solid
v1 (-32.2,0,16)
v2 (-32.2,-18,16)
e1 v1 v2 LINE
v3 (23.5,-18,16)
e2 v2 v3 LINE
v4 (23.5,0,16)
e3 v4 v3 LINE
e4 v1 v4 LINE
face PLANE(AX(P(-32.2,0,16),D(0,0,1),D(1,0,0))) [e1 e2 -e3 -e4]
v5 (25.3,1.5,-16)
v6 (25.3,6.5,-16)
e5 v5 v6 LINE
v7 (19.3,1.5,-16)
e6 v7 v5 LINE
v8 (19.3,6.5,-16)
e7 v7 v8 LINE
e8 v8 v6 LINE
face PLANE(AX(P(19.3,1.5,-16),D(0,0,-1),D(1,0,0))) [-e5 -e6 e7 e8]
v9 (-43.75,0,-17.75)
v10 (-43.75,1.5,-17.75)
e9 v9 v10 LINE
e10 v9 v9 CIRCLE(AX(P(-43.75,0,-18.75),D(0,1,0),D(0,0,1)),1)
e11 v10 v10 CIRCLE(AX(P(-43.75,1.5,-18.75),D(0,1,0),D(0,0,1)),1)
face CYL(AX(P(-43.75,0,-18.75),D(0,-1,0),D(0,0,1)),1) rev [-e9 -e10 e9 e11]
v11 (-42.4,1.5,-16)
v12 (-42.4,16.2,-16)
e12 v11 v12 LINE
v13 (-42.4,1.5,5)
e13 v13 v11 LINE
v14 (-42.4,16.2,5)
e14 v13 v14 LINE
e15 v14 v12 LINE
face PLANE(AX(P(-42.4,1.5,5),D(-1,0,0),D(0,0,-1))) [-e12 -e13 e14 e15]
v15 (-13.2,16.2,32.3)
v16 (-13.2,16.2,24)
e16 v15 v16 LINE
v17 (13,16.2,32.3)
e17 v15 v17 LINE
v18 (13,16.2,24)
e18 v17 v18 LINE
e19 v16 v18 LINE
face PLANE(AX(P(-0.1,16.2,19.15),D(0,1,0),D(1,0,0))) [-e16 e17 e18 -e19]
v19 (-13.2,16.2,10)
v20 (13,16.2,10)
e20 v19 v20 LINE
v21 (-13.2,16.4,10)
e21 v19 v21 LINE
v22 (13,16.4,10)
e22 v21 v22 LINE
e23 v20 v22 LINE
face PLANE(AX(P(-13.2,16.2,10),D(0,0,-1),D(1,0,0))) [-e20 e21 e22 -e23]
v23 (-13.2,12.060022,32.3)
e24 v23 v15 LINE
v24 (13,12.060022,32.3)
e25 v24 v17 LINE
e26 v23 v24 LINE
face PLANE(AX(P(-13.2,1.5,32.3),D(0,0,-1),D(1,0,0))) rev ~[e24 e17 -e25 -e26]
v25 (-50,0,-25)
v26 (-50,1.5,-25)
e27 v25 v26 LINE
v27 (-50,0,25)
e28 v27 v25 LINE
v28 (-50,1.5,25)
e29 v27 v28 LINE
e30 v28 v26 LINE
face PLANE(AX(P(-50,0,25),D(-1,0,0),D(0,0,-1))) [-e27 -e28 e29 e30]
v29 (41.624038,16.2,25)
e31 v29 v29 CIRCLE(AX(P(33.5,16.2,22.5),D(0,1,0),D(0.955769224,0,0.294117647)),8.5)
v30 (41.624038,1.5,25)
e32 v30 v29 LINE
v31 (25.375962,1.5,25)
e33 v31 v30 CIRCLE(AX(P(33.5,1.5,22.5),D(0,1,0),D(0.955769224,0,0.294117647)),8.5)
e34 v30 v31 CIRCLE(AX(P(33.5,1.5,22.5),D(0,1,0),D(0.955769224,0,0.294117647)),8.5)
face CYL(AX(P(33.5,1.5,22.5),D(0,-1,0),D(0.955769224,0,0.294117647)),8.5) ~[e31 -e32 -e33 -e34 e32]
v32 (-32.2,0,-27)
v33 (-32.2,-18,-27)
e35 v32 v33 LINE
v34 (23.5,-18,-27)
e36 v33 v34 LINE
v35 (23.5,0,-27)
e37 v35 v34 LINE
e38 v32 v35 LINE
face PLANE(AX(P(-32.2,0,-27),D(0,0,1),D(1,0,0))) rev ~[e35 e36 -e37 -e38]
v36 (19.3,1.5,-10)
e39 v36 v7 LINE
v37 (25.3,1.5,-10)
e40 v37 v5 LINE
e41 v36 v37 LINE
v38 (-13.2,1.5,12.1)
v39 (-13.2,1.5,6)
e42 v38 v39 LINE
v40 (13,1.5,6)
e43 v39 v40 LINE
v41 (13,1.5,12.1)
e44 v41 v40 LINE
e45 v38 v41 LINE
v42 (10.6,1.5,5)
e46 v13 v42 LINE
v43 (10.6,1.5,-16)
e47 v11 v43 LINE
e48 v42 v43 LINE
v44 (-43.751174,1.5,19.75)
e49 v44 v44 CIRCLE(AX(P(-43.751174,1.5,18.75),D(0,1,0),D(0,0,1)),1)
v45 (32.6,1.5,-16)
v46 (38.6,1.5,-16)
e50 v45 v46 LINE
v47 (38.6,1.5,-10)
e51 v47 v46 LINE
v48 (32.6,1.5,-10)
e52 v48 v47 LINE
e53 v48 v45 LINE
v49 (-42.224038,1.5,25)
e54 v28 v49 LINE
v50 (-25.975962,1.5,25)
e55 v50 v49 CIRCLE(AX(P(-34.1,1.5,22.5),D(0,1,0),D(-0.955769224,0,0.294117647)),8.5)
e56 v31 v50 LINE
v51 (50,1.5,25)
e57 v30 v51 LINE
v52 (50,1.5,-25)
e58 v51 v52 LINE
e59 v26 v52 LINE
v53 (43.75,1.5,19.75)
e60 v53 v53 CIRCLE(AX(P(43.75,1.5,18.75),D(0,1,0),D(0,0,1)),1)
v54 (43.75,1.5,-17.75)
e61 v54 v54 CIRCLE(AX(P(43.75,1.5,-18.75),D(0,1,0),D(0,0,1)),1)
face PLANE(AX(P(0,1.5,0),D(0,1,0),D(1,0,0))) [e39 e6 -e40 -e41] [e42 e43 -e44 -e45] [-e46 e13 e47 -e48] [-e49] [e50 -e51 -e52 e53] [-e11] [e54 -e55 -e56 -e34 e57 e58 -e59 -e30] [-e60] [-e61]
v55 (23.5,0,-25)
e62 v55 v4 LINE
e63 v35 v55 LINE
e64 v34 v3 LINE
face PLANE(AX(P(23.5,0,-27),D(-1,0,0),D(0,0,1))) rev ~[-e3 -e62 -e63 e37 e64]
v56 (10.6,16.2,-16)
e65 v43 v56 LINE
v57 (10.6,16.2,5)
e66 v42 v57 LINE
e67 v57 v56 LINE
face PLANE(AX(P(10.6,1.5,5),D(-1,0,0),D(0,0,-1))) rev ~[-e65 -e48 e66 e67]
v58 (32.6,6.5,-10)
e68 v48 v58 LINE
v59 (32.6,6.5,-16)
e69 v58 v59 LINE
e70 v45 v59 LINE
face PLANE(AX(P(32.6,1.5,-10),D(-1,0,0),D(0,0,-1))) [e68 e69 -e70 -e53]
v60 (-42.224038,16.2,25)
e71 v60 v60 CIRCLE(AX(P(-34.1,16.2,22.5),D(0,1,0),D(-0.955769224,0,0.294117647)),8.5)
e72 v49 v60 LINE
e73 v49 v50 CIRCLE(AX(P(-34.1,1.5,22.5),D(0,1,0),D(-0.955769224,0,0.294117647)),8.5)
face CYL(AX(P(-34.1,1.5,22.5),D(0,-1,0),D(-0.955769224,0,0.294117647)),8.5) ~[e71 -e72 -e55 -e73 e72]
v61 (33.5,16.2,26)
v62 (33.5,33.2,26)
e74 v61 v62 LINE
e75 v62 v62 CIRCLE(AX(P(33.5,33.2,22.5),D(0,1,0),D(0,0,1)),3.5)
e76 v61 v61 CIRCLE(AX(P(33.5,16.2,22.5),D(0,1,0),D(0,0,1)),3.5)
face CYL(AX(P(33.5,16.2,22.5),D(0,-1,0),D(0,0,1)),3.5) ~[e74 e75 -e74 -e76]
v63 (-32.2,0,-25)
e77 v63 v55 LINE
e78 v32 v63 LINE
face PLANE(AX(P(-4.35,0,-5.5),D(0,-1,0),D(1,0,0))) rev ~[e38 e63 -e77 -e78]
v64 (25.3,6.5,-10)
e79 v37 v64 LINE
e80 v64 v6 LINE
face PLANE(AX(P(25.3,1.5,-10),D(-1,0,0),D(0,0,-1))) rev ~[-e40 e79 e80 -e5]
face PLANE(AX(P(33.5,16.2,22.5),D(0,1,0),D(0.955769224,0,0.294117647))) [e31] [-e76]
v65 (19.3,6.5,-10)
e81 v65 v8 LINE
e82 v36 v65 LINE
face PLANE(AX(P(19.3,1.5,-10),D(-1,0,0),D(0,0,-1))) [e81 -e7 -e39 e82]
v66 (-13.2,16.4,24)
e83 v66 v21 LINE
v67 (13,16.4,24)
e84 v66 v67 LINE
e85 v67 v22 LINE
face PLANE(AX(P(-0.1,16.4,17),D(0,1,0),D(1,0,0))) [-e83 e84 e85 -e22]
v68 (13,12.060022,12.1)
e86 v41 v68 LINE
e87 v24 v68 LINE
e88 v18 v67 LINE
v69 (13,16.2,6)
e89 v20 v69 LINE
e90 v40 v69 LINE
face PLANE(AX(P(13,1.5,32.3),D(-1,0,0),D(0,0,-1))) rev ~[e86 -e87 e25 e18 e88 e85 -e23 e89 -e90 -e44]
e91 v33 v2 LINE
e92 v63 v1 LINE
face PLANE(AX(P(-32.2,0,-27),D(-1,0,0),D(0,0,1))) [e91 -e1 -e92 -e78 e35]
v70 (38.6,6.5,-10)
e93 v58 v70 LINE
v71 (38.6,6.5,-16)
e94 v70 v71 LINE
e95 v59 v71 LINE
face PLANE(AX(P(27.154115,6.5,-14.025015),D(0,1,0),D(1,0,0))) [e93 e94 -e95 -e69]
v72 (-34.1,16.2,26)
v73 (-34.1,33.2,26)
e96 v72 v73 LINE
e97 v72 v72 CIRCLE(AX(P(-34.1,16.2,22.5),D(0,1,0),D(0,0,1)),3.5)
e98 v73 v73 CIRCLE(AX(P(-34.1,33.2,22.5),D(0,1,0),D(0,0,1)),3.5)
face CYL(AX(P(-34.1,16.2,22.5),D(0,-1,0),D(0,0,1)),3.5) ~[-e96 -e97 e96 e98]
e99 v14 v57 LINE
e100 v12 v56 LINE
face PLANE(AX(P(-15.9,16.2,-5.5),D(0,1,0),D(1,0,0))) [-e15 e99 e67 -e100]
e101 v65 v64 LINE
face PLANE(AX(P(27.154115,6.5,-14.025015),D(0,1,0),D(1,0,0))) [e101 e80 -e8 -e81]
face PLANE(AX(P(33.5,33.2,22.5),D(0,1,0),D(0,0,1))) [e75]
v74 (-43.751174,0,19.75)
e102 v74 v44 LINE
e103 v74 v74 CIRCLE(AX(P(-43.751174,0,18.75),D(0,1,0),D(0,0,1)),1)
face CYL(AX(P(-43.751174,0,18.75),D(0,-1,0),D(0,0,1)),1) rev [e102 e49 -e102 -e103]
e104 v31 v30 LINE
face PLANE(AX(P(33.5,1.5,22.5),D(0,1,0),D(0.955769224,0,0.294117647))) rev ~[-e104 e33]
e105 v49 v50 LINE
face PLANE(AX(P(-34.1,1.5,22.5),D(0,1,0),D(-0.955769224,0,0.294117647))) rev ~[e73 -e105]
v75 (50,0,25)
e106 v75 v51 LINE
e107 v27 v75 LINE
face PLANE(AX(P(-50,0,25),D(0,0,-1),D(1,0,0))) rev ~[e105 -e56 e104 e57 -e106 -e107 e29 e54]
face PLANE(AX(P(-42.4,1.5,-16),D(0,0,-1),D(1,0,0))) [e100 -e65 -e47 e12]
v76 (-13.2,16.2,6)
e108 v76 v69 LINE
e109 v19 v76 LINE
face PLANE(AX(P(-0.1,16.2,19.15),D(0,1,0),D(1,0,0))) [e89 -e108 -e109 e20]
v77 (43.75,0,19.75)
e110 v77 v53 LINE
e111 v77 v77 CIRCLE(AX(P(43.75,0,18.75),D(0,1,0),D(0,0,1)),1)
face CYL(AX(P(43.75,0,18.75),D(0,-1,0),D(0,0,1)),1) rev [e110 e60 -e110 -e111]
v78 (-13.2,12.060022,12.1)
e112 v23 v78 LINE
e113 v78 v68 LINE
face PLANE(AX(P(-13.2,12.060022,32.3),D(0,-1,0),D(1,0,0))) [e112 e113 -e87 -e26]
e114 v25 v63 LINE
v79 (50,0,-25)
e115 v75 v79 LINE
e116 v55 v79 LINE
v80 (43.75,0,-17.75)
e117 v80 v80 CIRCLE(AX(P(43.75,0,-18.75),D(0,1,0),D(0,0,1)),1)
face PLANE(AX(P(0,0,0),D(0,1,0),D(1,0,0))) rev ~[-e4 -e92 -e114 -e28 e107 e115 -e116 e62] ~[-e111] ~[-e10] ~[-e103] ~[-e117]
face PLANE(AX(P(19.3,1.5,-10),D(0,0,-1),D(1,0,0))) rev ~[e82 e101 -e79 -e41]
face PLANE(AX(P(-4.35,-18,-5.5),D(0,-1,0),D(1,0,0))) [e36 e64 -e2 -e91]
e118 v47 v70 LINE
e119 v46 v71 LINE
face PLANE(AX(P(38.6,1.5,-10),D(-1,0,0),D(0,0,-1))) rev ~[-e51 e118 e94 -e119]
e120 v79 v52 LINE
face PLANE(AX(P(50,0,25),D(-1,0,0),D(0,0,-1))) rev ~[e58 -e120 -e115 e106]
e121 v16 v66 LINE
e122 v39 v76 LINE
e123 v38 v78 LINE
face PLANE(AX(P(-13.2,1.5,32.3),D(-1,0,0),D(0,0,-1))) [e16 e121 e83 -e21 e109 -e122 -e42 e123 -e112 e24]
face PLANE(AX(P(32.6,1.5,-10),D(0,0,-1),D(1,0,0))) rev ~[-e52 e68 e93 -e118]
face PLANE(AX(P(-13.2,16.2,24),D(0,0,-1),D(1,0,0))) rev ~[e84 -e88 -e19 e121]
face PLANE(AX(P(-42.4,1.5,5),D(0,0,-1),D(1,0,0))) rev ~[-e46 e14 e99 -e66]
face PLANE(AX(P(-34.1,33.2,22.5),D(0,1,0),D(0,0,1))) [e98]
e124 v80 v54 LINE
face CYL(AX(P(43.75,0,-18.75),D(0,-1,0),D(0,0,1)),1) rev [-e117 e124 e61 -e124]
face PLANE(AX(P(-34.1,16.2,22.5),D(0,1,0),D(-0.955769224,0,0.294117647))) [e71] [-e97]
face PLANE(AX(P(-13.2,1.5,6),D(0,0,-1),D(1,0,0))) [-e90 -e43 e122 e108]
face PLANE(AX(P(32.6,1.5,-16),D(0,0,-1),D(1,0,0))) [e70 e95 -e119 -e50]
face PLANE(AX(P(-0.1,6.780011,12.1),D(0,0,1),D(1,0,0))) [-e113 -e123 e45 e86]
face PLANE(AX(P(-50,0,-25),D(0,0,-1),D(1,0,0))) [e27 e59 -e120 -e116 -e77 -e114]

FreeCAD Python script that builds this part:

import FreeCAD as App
import Part
import Sketcher


def add_polygon(sketch, points):
    """Adds a closed chain of lines whose ends are joined by coincident constraints."""
    first, n = sketch.GeometryCount, len(points)
    for a, b in zip(points, points[1:] + points[:1]):
        sketch.addGeometry(Part.LineSegment(App.Vector(*a, 0), App.Vector(*b, 0)), False)
    for i in range(n):
        sketch.addConstraint(Sketcher.Constraint("Coincident", first + i, 2, first + (i + 1) % n, 1))

doc = App.newDocument("Part")
params = doc.addObject("Spreadsheet::Sheet", "Params")
for row, (alias, value) in enumerate([
    ("sketch1_diameter", "2 mm"),
    ("sketch1_width", "100 mm"),
    ("sketch1_height", "50 mm"),
    ("pad1_length", "1.5 mm"),
    ("sketch2_diameter", "17 mm"),
    ("sketch2_width", "53 mm"),
    ("sketch2_width2", "6 mm"),
    ("sketch2_height", "21 mm"),
    ("sketch2_width3", "26.2 mm"),
    ("pad2_length", "14.7 mm"),
    ("pocket1_length", "9.7 mm"),
    ("sketch4_diameter", "7 mm"),
    ("pad3_length", "17 mm"),
    ("sketch5_height", "43 mm"),
    ("sketch5_width", "55.7 mm"),
    ("pad4_length", "18 mm"),
    ("sketch6_height", "14 mm"),
    ("sketch6_width", "26.2 mm"),
    ("pad5_length", "0.2 mm"),
    ("sketch7_width", "26.2 mm"),
    ("pocket2_length", "20.2 mm"),
], start=1):
    params.set(f"A{row}", alias)
    params.set(f"B{row}", "=" + value)
    params.setAlias(f"B{row}", alias)

body = doc.addObject("PartDesign::Body", "Body")

# Sketch on XZ plane
sketch1 = body.newObject("Sketcher::SketchObject", "Sketch")
sketch1.AttachmentSupport = (doc.getObject("XZ_Plane"), [""])
sketch1.MapMode = "FlatFace"
add_polygon(sketch1, [(-50, -25), (-50, 25), (50, 25), (50, -25)])  # lines 0-3
sketch1.addGeometry(Part.Circle(App.Vector(-43.751174, 18.75, 0), App.Vector(0, 0, 1), 1), False)  # 4
sketch1.addGeometry(Part.Circle(App.Vector(43.75, 18.75, 0), App.Vector(0, 0, 1), 1), False)  # 5
sketch1.addGeometry(Part.Circle(App.Vector(-43.75, -18.75, 0), App.Vector(0, 0, 1), 1), False)  # 6
sketch1.addGeometry(Part.Circle(App.Vector(43.75, -18.75, 0), App.Vector(0, 0, 1), 1), False)  # 7
sketch1.addConstraint(Sketcher.Constraint("Vertical", 0))
sketch1.addConstraint(Sketcher.Constraint("Horizontal", 1))
sketch1.addConstraint(Sketcher.Constraint("Vertical", 2))
sketch1.addConstraint(Sketcher.Constraint("Horizontal", 3))
sketch1.addConstraint(Sketcher.Constraint("Equal", 4, 5))
sketch1.addConstraint(Sketcher.Constraint("Equal", 5, 6))
sketch1.addConstraint(Sketcher.Constraint("Equal", 6, 7))
sketch1.addConstraint(Sketcher.Constraint("Symmetric", 5, 3, 6, 3, -1, 1))
sketch1.addConstraint(Sketcher.Constraint("Symmetric", 0, 2, 2, 2, -1, 1))
sketch1.addConstraint(Sketcher.Constraint("Symmetric", 6, 3, 7, 3, -2))
sketch1.addConstraint(Sketcher.Constraint("Horizontal", 4, 3, 5, 3))
sketch1.addConstraint(Sketcher.Constraint("Diameter", 4, 2.0))
sketch1.addConstraint(Sketcher.Constraint("DistanceX", 1, 1, 1, 2, 100.0))
sketch1.addConstraint(Sketcher.Constraint("DistanceY", 0, 1, 0, 2, 50.0))
sketch1.addConstraint(Sketcher.Constraint("DistanceY", 6, 3, 4, 3, 37.5))
sketch1.addConstraint(Sketcher.Constraint("DistanceX", 6, 3, 5, 3, 87.5))
sketch1.addConstraint(Sketcher.Constraint("DistanceX", 4, 3, -1, 1, 43.751174))
sketch1.setExpression("Constraints[15]", "Params.sketch1_diameter")
sketch1.setExpression("Constraints[16]", "Params.sketch1_width")
sketch1.setExpression("Constraints[17]", "Params.sketch1_height")
pad1 = body.newObject("PartDesign::Pad", "Pad")
pad1.Profile = sketch1
pad1.setExpression("Length", "Params.pad1_length")
pad1.Reversed = True

# Sketch on XZ plane
sketch2 = body.newObject("Sketcher::SketchObject", "Sketch001")
sketch2.AttachmentSupport = (doc.getObject("XZ_Plane"), [""])
sketch2.MapMode = "FlatFace"
sketch2.AttachmentOffset = App.Placement(App.Vector(0, 0, -1.5), App.Rotation())
sketch2.addGeometry(Part.Circle(App.Vector(33.5, 22.5, 0), App.Vector(0, 0, 1), 8.5), False)  # 0
sketch2.addGeometry(Part.Circle(App.Vector(-34.1, 22.5, 0), App.Vector(0, 0, 1), 8.5), False)  # 1
add_polygon(sketch2, [(-42.4, -16), (-42.4, 5), (10.6, 5), (10.6, -16)])  # lines 2-5
add_polygon(sketch2, [(19.3, -16), (19.3, -10), (25.3, -10), (25.3, -16)])  # lines 6-9
add_polygon(sketch2, [(32.6, -16), (32.6, -10), (38.6, -10), (38.6, -16)])  # lines 10-13
add_polygon(sketch2, [(-13.2, 6), (-13.2, 32.3), (13, 32.3), (13, 6)])  # lines 14-17
sketch2.addConstraint(Sketcher.Constraint("Vertical", 2))
sketch2.addConstraint(Sketcher.Constraint("Horizontal", 3))
sketch2.addConstraint(Sketcher.Constraint("Vertical", 4))
sketch2.addConstraint(Sketcher.Constraint("Horizontal", 5))
sketch2.addConstraint(Sketcher.Constraint("Vertical", 6))
sketch2.addConstraint(Sketcher.Constraint("Horizontal", 7))
sketch2.addConstraint(Sketcher.Constraint("Vertical", 8))
sketch2.addConstraint(Sketcher.Constraint("Horizontal", 9))
sketch2.addConstraint(Sketcher.Constraint("Vertical", 10))
sketch2.addConstraint(Sketcher.Constraint("Horizontal", 11))
sketch2.addConstraint(Sketcher.Constraint("Vertical", 12))
sketch2.addConstraint(Sketcher.Constraint("Horizontal", 13))
sketch2.addConstraint(Sketcher.Constraint("Vertical", 14))
sketch2.addConstraint(Sketcher.Constraint("Horizontal", 15))
sketch2.addConstraint(Sketcher.Constraint("Vertical", 16))
sketch2.addConstraint(Sketcher.Constraint("Horizontal", 17))
sketch2.addConstraint(Sketcher.Constraint("Equal", 0, 1))
sketch2.addConstraint(Sketcher.Constraint("Horizontal", 0, 3, 1, 3))
sketch2.addConstraint(Sketcher.Constraint("Horizontal", 5, 2, 8, 2))
sketch2.addConstraint(Sketcher.Constraint("Horizontal", 7, 2, 10, 2))
sketch2.addConstraint(Sketcher.Constraint("Horizontal", 9, 2, 12, 2))
sketch2.addConstraint(Sketcher.Constraint("Equal", 9, 11))
sketch2.addConstraint(Sketcher.Constraint("Equal", 13, 6))
sketch2.addConstraint(Sketcher.Constraint("Diameter", 0, 17.0))
sketch2.addConstraint(Sketcher.Constraint("DistanceX", 3, 1, 3, 2, 53.0))
sketch2.addConstraint(Sketcher.Constraint("DistanceX", 7, 1, 7, 2, 6.0))
sketch2.addConstraint(Sketcher.Constraint("DistanceY", 2, 1, 2, 2, 21.0))
sketch2.addConstraint(Sketcher.Constraint("DistanceX", 15, 1, 15, 2, 26.2))
sketch2.addConstraint(Sketcher.Constraint("DistanceY", 14, 1, 14, 2, 26.3))
sketch2.addConstraint(Sketcher.Constraint("DistanceY", -1, 1, 2, 2, 5.0))
sketch2.addConstraint(Sketcher.Constraint("DistanceX", -1, 1, 15, 2, 13.0))
sketch2.addConstraint(Sketcher.Constraint("DistanceY", -1, 1, 16, 2, 6.0))
sketch2.addConstraint(Sketcher.Constraint("DistanceX", 4, 2, 10, 2, 22.0))
sketch2.addConstraint(Sketcher.Constraint("DistanceX", -1, 1, 0, 3, 33.5))
sketch2.addConstraint(Sketcher.Constraint("DistanceY", -1, 1, 0, 3, 22.5))
sketch2.addConstraint(Sketcher.Constraint("DistanceX", 1, 3, -1, 1, 34.1))
sketch2.addConstraint(Sketcher.Constraint("DistanceX", 2, 2, -1, 1, 42.4))
sketch2.addConstraint(Sketcher.Constraint("DistanceX", -1, 1, 6, 2, 19.3))
sketch2.setExpression("Constraints[39]", "Params.sketch2_diameter")
sketch2.setExpression("Constraints[40]", "Params.sketch2_width")
sketch2.setExpression("Constraints[41]", "Params.sketch2_width2")
sketch2.setExpression("Constraints[42]", "Params.sketch2_height")
sketch2.setExpression("Constraints[43]", "Params.sketch2_width3")
pad2 = body.newObject("PartDesign::Pad", "Pad001")
pad2.Profile = sketch2
pad2.setExpression("Length", "Params.pad2_length")
pad2.Reversed = True

# Sketch on XZ plane
sketch3 = body.newObject("Sketcher::SketchObject", "Sketch002")
sketch3.AttachmentSupport = (doc.getObject("XZ_Plane"), [""])
sketch3.MapMode = "FlatFace"
sketch3.AttachmentOffset = App.Placement(App.Vector(0, 0, -16.2), App.Rotation())
add_polygon(sketch3, [(15.70823, -18.050029), (15.70823, -10), (38.6, -10), (38.6, -18.050029)])  # lines 0-3
sketch3.addConstraint(Sketcher.Constraint("Vertical", 0))
sketch3.addConstraint(Sketcher.Constraint("Horizontal", 1))
sketch3.addConstraint(Sketcher.Constraint("Vertical", 2))
sketch3.addConstraint(Sketcher.Constraint("Horizontal", 3))
sketch3.addConstraint(Sketcher.Constraint("DistanceY", 0, 2, -1, 1, 10.0))
sketch3.addConstraint(Sketcher.Constraint("DistanceX", -1, 1, 1, 2, 38.6))
sketch3.addConstraint(Sketcher.Constraint("DistanceX", 1, 1, 1, 2, 22.89177))
sketch3.addConstraint(Sketcher.Constraint("DistanceY", 0, 1, 0, 2, 8.050029))
pocket1 = body.newObject("PartDesign::Pocket", "Pocket")
pocket1.Profile = sketch3
pocket1.setExpression("Length", "Params.pocket1_length")
pocket1.Reversed = True

# Sketch on XZ plane
sketch4 = body.newObject("Sketcher::SketchObject", "Sketch003")
sketch4.AttachmentSupport = (doc.getObject("XZ_Plane"), [""])
sketch4.MapMode = "FlatFace"
sketch4.AttachmentOffset = App.Placement(App.Vector(0, 0, -16.2), App.Rotation())
sketch4.addGeometry(Part.Circle(App.Vector(33.5, 22.5, 0), App.Vector(0, 0, 1), 3.5), False)
sketch4.addGeometry(Part.Circle(App.Vector(-34.1, 22.5, 0), App.Vector(0, 0, 1), 3.5), False)
sketch4.addConstraint(Sketcher.Constraint("Equal", 0, 1))
sketch4.addConstraint(Sketcher.Constraint("Horizontal", 0, 3, 1, 3))
sketch4.addConstraint(Sketcher.Constraint("Diameter", 0, 7.0))
sketch4.addConstraint(Sketcher.Constraint("DistanceX", -1, 1, 0, 3, 33.5))
sketch4.addConstraint(Sketcher.Constraint("DistanceY", -1, 1, 0, 3, 22.5))
sketch4.addConstraint(Sketcher.Constraint("DistanceX", 1, 3, -1, 1, 34.1))
sketch4.setExpression("Constraints[2]", "Params.sketch4_diameter")
pad3 = body.newObject("PartDesign::Pad", "Pad002")
pad3.Profile = sketch4
pad3.setExpression("Length", "Params.pad3_length")
pad3.Reversed = True

# Sketch on XZ plane
sketch5 = body.newObject("Sketcher::SketchObject", "Sketch004")
sketch5.AttachmentSupport = (doc.getObject("XZ_Plane"), [""])
sketch5.MapMode = "FlatFace"
add_polygon(sketch5, [(-32.2, 16), (-32.2, -27), (23.5, -27), (23.5, 16)])  # lines 0-3
sketch5.addConstraint(Sketcher.Constraint("Vertical", 0))
sketch5.addConstraint(Sketcher.Constraint("Horizontal", 1))
sketch5.addConstraint(Sketcher.Constraint("Vertical", 2))
sketch5.addConstraint(Sketcher.Constraint("Horizontal", 3))
sketch5.addConstraint(Sketcher.Constraint("DistanceY", 0, 2, 0, 1, 43.0))
sketch5.addConstraint(Sketcher.Constraint("DistanceX", 1, 1, 1, 2, 55.7))
sketch5.addConstraint(Sketcher.Constraint("DistanceY", 0, 2, -1, 1, 27.0))
sketch5.addConstraint(Sketcher.Constraint("DistanceX", 0, 2, -1, 1, 32.2))
sketch5.setExpression("Constraints[8]", "Params.sketch5_height")
sketch5.setExpression("Constraints[9]", "Params.sketch5_width")
pad4 = body.newObject("PartDesign::Pad", "Pad003")
pad4.Profile = sketch5
pad4.setExpression("Length", "Params.pad4_length")

# Sketch on XZ plane
sketch6 = body.newObject("Sketcher::SketchObject", "Sketch005")
sketch6.AttachmentSupport = (doc.getObject("XZ_Plane"), [""])
sketch6.MapMode = "FlatFace"
sketch6.AttachmentOffset = App.Placement(App.Vector(0, 0, -16.2), App.Rotation())
add_polygon(sketch6, [(-13.2, 10), (-13.2, 24), (13, 24), (13, 10)])  # lines 0-3
sketch6.addConstraint(Sketcher.Constraint("Vertical", 0))
sketch6.addConstraint(Sketcher.Constraint("Horizontal", 1))
sketch6.addConstraint(Sketcher.Constraint("Vertical", 2))
sketch6.addConstraint(Sketcher.Constraint("Horizontal", 3))
sketch6.addConstraint(Sketcher.Constraint("DistanceY", 0, 1, 0, 2, 14.0))
sketch6.addConstraint(Sketcher.Constraint("DistanceX", 1, 1, 1, 2, 26.2))
sketch6.addConstraint(Sketcher.Constraint("DistanceY", -1, 1, 0, 2, 24.0))
sketch6.addConstraint(Sketcher.Constraint("DistanceX", -1, 1, 1, 2, 13.0))
sketch6.setExpression("Constraints[8]", "Params.sketch6_height")
sketch6.setExpression("Constraints[9]", "Params.sketch6_width")
pad5 = body.newObject("PartDesign::Pad", "Pad004")
pad5.Profile = sketch6
pad5.setExpression("Length", "Params.pad5_length")
pad5.Reversed = True

# Sketch on XY plane
sketch7 = body.newObject("Sketcher::SketchObject", "Sketch006")
sketch7.AttachmentSupport = (doc.getObject("XY_Plane"), [""])
sketch7.MapMode = "FlatFace"
sketch7.AttachmentOffset = App.Placement(App.Vector(0, 0, 32.3), App.Rotation())
add_polygon(sketch7, [(-13.2, 12.060022), (-13.2, 1.5), (13, 1.5), (13, 12.060022)])  # lines 0-3
sketch7.addConstraint(Sketcher.Constraint("Vertical", 0))
sketch7.addConstraint(Sketcher.Constraint("Horizontal", 1))
sketch7.addConstraint(Sketcher.Constraint("Vertical", 2))
sketch7.addConstraint(Sketcher.Constraint("Horizontal", 3))
sketch7.addConstraint(Sketcher.Constraint("DistanceX", 1, 1, 1, 2, 26.2))
sketch7.addConstraint(Sketcher.Constraint("DistanceX", -1, 1, 1, 2, 13.0))
sketch7.addConstraint(Sketcher.Constraint("DistanceY", -1, 1, 0, 2, 1.5))
sketch7.addConstraint(Sketcher.Constraint("DistanceY", 0, 2, 0, 1, 10.560022))
sketch7.setExpression("Constraints[8]", "Params.sketch7_width")
pocket2 = body.newObject("PartDesign::Pocket", "Pocket001")
pocket2.Profile = sketch7
pocket2.setExpression("Length", "Params.pocket2_length")

doc.recompute()
